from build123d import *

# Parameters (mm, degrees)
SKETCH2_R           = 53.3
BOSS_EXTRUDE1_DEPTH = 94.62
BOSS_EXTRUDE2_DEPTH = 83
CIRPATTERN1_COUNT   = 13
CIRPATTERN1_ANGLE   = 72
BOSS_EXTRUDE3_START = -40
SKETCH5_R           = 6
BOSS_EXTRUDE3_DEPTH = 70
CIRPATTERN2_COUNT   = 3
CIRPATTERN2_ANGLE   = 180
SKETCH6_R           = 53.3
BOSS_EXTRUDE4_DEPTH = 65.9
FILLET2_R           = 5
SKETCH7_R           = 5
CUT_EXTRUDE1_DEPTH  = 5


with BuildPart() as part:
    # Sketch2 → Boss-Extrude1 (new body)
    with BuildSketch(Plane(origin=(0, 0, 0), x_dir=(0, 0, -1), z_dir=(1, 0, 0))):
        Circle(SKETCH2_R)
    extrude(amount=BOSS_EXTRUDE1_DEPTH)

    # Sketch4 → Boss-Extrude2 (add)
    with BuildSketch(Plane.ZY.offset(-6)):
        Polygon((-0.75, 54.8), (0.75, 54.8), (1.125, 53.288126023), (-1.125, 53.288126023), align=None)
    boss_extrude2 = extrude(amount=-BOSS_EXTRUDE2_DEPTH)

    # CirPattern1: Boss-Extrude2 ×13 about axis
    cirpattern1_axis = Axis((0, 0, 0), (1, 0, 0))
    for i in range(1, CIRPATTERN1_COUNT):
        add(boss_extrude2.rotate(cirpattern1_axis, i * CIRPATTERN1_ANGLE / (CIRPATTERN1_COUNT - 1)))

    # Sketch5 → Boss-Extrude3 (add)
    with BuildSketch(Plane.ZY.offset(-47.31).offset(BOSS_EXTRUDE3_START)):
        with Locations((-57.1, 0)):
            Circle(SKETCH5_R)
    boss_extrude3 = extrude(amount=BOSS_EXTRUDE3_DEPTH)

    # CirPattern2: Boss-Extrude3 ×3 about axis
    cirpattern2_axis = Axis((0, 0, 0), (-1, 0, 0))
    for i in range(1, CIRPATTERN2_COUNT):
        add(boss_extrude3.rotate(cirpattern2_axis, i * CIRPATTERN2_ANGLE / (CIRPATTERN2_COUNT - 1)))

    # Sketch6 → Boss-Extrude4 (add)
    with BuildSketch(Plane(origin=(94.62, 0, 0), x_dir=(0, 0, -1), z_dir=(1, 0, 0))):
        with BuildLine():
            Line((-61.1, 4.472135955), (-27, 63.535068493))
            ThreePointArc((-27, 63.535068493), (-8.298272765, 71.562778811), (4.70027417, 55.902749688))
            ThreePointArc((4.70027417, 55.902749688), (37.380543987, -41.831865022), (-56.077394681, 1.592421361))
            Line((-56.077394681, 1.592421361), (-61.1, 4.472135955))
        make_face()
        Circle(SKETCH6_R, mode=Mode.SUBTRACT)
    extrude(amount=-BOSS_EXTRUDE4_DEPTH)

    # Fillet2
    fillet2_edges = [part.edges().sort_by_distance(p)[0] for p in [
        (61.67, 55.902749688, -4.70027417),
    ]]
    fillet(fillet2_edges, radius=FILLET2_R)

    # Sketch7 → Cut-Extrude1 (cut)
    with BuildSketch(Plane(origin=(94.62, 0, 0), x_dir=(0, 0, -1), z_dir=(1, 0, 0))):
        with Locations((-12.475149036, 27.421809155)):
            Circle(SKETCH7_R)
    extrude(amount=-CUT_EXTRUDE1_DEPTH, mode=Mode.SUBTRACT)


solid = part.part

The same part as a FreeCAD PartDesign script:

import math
import FreeCAD as App
import Part
import Sketcher

V = App.Vector
Q = App.Units.Quantity


def edges_at(feature, points):
    """Names of the edges that pass closest to the given points."""
    edges = feature.Shape.Edges
    near = lambda p: min(range(len(edges)), key=lambda i: edges[i].distToShape(Part.Vertex(*p))[0])
    return sorted({f"Edge{near(p) + 1}" for p in points})


def add_polygon(sketch, points):
    """Adds a closed chain of lines whose ends are joined by coincident constraints."""
    first, n = sketch.GeometryCount, len(points)
    for a, b in zip(points, points[1:] + points[:1]):
        sketch.addGeometry(Part.LineSegment(App.Vector(*a, 0), App.Vector(*b, 0)), False)
    for i in range(n):
        sketch.addConstraint(Sketcher.Constraint("Coincident", first + i, 2, first + (i + 1) % n, 1))

doc = App.newDocument("Part")
params = doc.addObject("Spreadsheet::Sheet", "Params")
for row, (alias, value) in enumerate([
    ("sketch1_diameter", "106.6 mm"),
    ("pad1_length", "94.62 mm"),
    ("sketch2_height", "1.5 mm"),
    ("sketch2_height2", "2.25 mm"),
    ("pad2_length", "83 mm"),
    ("sketch3_diameter", "12 mm"),
    ("pad3_length", "70 mm"),
    ("sketch4_radius", "17 mm"),
    ("sketch4_diameter", "106.6 mm"),
    ("sketch4_radius2", "56.1 mm"),
    ("sketch4_length", "68.2 mm"),
    ("pad4_length", "65.9 mm"),
    ("fillet_radius", "5 mm"),
    ("sketch5_diameter", "10 mm"),
    ("pocket1_length", "5 mm"),
], start=1):
    params.set(f"A{row}", alias)
    params.set(f"B{row}", "=" + value)
    params.setAlias(f"B{row}", alias)

body = doc.addObject("PartDesign::Body", "Body")

sketch1 = doc.addObject("Sketcher::SketchObject", "Sketch")
body.addObject(sketch1)
sketch1.AttachmentSupport = (doc.YZ_Plane, [""])
sketch1.MapMode = "FlatFace"
sketch1.addGeometry(Part.Circle(V(0, 0, 0), V(0, 0, 1), 53.3), False)
sketch1.addConstraint(Sketcher.Constraint("Coincident", 0, 3, -1, 1))
sketch1.addConstraint(Sketcher.Constraint("Diameter", 0, Q("106.6 mm")))
sketch1.setExpression("Constraints[1]", "Params.sketch1_diameter")
pad1 = doc.addObject("PartDesign::Pad", "Pad")
body.addObject(pad1)
pad1.Profile = sketch1
pad1.setExpression("Length", "Params.pad1_length")

sketch2 = doc.addObject("Sketcher::SketchObject", "Sketch001")
body.addObject(sketch2)
sketch2.AttachmentSupport = (doc.YZ_Plane, [""])
sketch2.MapMode = "FlatFace"
sketch2.AttachmentOffset = App.Placement(V(0, 0, 6), App.Rotation())
add_polygon(sketch2, [(54.8, 0.75), (54.8, -0.75), (53.288126, -1.125), (53.288126, 1.125)])
sketch2.addConstraint(Sketcher.Constraint("Vertical", 0))
sketch2.addConstraint(Sketcher.Constraint("Vertical", 2))
sketch2.addConstraint(Sketcher.Constraint("Equal", 1, 3))
sketch2.addConstraint(Sketcher.Constraint("DistanceY", 0, 2, 0, 1, Q("1.5 mm")))
sketch2.addConstraint(Sketcher.Constraint("DistanceY", 2, 1, 2, 2, Q("2.25 mm")))
sketch2.addConstraint(Sketcher.Constraint("DistanceX", -1, 1, 0, 2, Q("54.8 mm")))
sketch2.addConstraint(Sketcher.Constraint("DistanceY", 0, 2, -1, 1, Q("0.75 mm")))
sketch2.addConstraint(Sketcher.Constraint("Distance", 1, Q("1.557687 mm")))
sketch2.setExpression("Constraints[7]", "Params.sketch2_height")
sketch2.setExpression("Constraints[8]", "Params.sketch2_height2")
pad2 = doc.addObject("PartDesign::Pad", "Pad001")
body.addObject(pad2)
pad2.Profile = sketch2
pad2.setExpression("Length", "Params.pad2_length")
doc.recompute()

polarpattern = doc.addObject("PartDesign::PolarPattern", "PolarPattern")
body.addObject(polarpattern)
polarpattern.Originals = [pad2]
polarpattern.Axis = (doc.X_Axis, [""])
polarpattern.Angle = 72
polarpattern.Occurrences = 13
body.Tip = polarpattern

sketch3 = doc.addObject("Sketcher::SketchObject", "Sketch002")
body.addObject(sketch3)
sketch3.AttachmentSupport = (doc.YZ_Plane, [""])
sketch3.MapMode = "FlatFace"
sketch3.AttachmentOffset = App.Placement(V(0, 0, 87.31), App.Rotation())
sketch3.addGeometry(Part.Circle(V(0, -57.1, 0), V(0, 0, 1), 6), False)
sketch3.addConstraint(Sketcher.Constraint("PointOnObject", 0, 3, -2))
sketch3.addConstraint(Sketcher.Constraint("Diameter", 0, Q("12 mm")))
sketch3.addConstraint(Sketcher.Constraint("DistanceY", 0, 3, -1, 1, Q("57.1 mm")))
sketch3.setExpression("Constraints[1]", "Params.sketch3_diameter")
pad3 = doc.addObject("PartDesign::Pad", "Pad002")
body.addObject(pad3)
pad3.Profile = sketch3
pad3.setExpression("Length", "Params.pad3_length")
pad3.Reversed = True
doc.recompute()

polarpattern2 = doc.addObject("PartDesign::PolarPattern", "PolarPattern001")
body.addObject(polarpattern2)
polarpattern2.Originals = [pad3]
polarpattern2.Axis = (doc.X_Axis, [""])
polarpattern2.Angle = 180
polarpattern2.Occurrences = 3
polarpattern2.Reversed = True
body.Tip = polarpattern2

sketch4 = doc.addObject("Sketcher::SketchObject", "Sketch003")
body.addObject(sketch4)
sketch4.AttachmentSupport = (doc.YZ_Plane, [""])
sketch4.MapMode = "FlatFace"
sketch4.AttachmentOffset = App.Placement(V(0, 0, 94.62), App.Rotation())
sketch4.addGeometry(Part.LineSegment(V(63.535068, 27, 0), V(4.472136, 61.1, 0)), False)
sketch4.addGeometry(Part.LineSegment(V(4.472136, 61.1, 0), V(1.592421, 56.077395, 0)), False)
sketch4.addGeometry(Part.ArcOfCircle(Part.Circle(V(0, 0, 0), V(0, 0, 1), 56.1), math.radians(88.373417), math.radians(355.193905)), False)
sketch4.addGeometry(Part.ArcOfCircle(Part.Circle(V(55.035068, 12.277568, 0), V(0, 0, 1), 17), math.radians(-87.074348), math.radians(60)), False)
sketch4.addGeometry(Part.Circle(V(0, 0, 0), V(0, 0, 1), 53.3), False)
sketch4.addConstraint(Sketcher.Constraint("Coincident", 0, 2, 1, 1))
sketch4.addConstraint(Sketcher.Constraint("Coincident", 1, 2, 2, 1))
sketch4.addConstraint(Sketcher.Constraint("Coincident", 2, 2, 3, 1))
sketch4.addConstraint(Sketcher.Constraint("Tangent", 3, 2, 0, 1))
sketch4.addConstraint(Sketcher.Constraint("Coincident", 2, 3, -1, 1))
sketch4.addConstraint(Sketcher.Constraint("Coincident", 4, 3, -1, 1))
sketch4.addConstraint(Sketcher.Constraint("Radius", 3, Q("17 mm")))
sketch4.addConstraint(Sketcher.Constraint("Diameter", 4, Q("106.6 mm")))
sketch4.addConstraint(Sketcher.Constraint("Radius", 2, Q("56.1 mm")))
sketch4.addConstraint(Sketcher.Constraint("Angle", 0, Q("150 deg")))
sketch4.addConstraint(Sketcher.Constraint("DistanceY", -1, 1, 3, 2, Q("27 mm")))
sketch4.addConstraint(Sketcher.Constraint("Distance", 0, Q("68.2 mm")))
sketch4.addConstraint(Sketcher.Constraint("DistanceX", -1, 1, 3, 3, Q("55.035068 mm")))
sketch4.addConstraint(Sketcher.Constraint("DistanceX", -1, 1, 1, 2, Q("1.592421 mm")))
sketch4.setExpression("Constraints[6]", "Params.sketch4_radius")
sketch4.setExpression("Constraints[7]", "Params.sketch4_diameter")
sketch4.setExpression("Constraints[8]", "Params.sketch4_radius2")
sketch4.setExpression("Constraints[11]", "Params.sketch4_length")
pad4 = doc.addObject("PartDesign::Pad", "Pad003")
body.addObject(pad4)
pad4.Profile = sketch4
pad4.setExpression("Length", "Params.pad4_length")
pad4.Reversed = True
doc.recompute()

fillet = doc.addObject("PartDesign::Fillet", "Fillet")
body.addObject(fillet)
fillet.Base = (pad4, edges_at(pad4, [(61.67, 55.903, -4.7)]))
fillet.setExpression("Radius", "Params.fillet_radius")

sketch5 = doc.addObject("Sketcher::SketchObject", "Sketch004")
body.addObject(sketch5)
sketch5.AttachmentSupport = (doc.YZ_Plane, [""])
sketch5.MapMode = "FlatFace"
sketch5.AttachmentOffset = App.Placement(V(0, 0, 94.62), App.Rotation())
sketch5.addGeometry(Part.Circle(V(27.421809, 12.475149, 0), V(0, 0, 1), 5), False)
sketch5.addConstraint(Sketcher.Constraint("Diameter", 0, Q("10 mm")))
sketch5.addConstraint(Sketcher.Constraint("DistanceX", -1, 1, 0, 3, Q("27.421809 mm")))
sketch5.addConstraint(Sketcher.Constraint("DistanceY", -1, 1, 0, 3, Q("12.475149 mm")))
sketch5.setExpression("Constraints[0]", "Params.sketch5_diameter")
pocket1 = doc.addObject("PartDesign::Pocket", "Pocket")
body.addObject(pocket1)
pocket1.Profile = sketch5
pocket1.setExpression("Length", "Params.pocket1_length")

doc.recompute()
